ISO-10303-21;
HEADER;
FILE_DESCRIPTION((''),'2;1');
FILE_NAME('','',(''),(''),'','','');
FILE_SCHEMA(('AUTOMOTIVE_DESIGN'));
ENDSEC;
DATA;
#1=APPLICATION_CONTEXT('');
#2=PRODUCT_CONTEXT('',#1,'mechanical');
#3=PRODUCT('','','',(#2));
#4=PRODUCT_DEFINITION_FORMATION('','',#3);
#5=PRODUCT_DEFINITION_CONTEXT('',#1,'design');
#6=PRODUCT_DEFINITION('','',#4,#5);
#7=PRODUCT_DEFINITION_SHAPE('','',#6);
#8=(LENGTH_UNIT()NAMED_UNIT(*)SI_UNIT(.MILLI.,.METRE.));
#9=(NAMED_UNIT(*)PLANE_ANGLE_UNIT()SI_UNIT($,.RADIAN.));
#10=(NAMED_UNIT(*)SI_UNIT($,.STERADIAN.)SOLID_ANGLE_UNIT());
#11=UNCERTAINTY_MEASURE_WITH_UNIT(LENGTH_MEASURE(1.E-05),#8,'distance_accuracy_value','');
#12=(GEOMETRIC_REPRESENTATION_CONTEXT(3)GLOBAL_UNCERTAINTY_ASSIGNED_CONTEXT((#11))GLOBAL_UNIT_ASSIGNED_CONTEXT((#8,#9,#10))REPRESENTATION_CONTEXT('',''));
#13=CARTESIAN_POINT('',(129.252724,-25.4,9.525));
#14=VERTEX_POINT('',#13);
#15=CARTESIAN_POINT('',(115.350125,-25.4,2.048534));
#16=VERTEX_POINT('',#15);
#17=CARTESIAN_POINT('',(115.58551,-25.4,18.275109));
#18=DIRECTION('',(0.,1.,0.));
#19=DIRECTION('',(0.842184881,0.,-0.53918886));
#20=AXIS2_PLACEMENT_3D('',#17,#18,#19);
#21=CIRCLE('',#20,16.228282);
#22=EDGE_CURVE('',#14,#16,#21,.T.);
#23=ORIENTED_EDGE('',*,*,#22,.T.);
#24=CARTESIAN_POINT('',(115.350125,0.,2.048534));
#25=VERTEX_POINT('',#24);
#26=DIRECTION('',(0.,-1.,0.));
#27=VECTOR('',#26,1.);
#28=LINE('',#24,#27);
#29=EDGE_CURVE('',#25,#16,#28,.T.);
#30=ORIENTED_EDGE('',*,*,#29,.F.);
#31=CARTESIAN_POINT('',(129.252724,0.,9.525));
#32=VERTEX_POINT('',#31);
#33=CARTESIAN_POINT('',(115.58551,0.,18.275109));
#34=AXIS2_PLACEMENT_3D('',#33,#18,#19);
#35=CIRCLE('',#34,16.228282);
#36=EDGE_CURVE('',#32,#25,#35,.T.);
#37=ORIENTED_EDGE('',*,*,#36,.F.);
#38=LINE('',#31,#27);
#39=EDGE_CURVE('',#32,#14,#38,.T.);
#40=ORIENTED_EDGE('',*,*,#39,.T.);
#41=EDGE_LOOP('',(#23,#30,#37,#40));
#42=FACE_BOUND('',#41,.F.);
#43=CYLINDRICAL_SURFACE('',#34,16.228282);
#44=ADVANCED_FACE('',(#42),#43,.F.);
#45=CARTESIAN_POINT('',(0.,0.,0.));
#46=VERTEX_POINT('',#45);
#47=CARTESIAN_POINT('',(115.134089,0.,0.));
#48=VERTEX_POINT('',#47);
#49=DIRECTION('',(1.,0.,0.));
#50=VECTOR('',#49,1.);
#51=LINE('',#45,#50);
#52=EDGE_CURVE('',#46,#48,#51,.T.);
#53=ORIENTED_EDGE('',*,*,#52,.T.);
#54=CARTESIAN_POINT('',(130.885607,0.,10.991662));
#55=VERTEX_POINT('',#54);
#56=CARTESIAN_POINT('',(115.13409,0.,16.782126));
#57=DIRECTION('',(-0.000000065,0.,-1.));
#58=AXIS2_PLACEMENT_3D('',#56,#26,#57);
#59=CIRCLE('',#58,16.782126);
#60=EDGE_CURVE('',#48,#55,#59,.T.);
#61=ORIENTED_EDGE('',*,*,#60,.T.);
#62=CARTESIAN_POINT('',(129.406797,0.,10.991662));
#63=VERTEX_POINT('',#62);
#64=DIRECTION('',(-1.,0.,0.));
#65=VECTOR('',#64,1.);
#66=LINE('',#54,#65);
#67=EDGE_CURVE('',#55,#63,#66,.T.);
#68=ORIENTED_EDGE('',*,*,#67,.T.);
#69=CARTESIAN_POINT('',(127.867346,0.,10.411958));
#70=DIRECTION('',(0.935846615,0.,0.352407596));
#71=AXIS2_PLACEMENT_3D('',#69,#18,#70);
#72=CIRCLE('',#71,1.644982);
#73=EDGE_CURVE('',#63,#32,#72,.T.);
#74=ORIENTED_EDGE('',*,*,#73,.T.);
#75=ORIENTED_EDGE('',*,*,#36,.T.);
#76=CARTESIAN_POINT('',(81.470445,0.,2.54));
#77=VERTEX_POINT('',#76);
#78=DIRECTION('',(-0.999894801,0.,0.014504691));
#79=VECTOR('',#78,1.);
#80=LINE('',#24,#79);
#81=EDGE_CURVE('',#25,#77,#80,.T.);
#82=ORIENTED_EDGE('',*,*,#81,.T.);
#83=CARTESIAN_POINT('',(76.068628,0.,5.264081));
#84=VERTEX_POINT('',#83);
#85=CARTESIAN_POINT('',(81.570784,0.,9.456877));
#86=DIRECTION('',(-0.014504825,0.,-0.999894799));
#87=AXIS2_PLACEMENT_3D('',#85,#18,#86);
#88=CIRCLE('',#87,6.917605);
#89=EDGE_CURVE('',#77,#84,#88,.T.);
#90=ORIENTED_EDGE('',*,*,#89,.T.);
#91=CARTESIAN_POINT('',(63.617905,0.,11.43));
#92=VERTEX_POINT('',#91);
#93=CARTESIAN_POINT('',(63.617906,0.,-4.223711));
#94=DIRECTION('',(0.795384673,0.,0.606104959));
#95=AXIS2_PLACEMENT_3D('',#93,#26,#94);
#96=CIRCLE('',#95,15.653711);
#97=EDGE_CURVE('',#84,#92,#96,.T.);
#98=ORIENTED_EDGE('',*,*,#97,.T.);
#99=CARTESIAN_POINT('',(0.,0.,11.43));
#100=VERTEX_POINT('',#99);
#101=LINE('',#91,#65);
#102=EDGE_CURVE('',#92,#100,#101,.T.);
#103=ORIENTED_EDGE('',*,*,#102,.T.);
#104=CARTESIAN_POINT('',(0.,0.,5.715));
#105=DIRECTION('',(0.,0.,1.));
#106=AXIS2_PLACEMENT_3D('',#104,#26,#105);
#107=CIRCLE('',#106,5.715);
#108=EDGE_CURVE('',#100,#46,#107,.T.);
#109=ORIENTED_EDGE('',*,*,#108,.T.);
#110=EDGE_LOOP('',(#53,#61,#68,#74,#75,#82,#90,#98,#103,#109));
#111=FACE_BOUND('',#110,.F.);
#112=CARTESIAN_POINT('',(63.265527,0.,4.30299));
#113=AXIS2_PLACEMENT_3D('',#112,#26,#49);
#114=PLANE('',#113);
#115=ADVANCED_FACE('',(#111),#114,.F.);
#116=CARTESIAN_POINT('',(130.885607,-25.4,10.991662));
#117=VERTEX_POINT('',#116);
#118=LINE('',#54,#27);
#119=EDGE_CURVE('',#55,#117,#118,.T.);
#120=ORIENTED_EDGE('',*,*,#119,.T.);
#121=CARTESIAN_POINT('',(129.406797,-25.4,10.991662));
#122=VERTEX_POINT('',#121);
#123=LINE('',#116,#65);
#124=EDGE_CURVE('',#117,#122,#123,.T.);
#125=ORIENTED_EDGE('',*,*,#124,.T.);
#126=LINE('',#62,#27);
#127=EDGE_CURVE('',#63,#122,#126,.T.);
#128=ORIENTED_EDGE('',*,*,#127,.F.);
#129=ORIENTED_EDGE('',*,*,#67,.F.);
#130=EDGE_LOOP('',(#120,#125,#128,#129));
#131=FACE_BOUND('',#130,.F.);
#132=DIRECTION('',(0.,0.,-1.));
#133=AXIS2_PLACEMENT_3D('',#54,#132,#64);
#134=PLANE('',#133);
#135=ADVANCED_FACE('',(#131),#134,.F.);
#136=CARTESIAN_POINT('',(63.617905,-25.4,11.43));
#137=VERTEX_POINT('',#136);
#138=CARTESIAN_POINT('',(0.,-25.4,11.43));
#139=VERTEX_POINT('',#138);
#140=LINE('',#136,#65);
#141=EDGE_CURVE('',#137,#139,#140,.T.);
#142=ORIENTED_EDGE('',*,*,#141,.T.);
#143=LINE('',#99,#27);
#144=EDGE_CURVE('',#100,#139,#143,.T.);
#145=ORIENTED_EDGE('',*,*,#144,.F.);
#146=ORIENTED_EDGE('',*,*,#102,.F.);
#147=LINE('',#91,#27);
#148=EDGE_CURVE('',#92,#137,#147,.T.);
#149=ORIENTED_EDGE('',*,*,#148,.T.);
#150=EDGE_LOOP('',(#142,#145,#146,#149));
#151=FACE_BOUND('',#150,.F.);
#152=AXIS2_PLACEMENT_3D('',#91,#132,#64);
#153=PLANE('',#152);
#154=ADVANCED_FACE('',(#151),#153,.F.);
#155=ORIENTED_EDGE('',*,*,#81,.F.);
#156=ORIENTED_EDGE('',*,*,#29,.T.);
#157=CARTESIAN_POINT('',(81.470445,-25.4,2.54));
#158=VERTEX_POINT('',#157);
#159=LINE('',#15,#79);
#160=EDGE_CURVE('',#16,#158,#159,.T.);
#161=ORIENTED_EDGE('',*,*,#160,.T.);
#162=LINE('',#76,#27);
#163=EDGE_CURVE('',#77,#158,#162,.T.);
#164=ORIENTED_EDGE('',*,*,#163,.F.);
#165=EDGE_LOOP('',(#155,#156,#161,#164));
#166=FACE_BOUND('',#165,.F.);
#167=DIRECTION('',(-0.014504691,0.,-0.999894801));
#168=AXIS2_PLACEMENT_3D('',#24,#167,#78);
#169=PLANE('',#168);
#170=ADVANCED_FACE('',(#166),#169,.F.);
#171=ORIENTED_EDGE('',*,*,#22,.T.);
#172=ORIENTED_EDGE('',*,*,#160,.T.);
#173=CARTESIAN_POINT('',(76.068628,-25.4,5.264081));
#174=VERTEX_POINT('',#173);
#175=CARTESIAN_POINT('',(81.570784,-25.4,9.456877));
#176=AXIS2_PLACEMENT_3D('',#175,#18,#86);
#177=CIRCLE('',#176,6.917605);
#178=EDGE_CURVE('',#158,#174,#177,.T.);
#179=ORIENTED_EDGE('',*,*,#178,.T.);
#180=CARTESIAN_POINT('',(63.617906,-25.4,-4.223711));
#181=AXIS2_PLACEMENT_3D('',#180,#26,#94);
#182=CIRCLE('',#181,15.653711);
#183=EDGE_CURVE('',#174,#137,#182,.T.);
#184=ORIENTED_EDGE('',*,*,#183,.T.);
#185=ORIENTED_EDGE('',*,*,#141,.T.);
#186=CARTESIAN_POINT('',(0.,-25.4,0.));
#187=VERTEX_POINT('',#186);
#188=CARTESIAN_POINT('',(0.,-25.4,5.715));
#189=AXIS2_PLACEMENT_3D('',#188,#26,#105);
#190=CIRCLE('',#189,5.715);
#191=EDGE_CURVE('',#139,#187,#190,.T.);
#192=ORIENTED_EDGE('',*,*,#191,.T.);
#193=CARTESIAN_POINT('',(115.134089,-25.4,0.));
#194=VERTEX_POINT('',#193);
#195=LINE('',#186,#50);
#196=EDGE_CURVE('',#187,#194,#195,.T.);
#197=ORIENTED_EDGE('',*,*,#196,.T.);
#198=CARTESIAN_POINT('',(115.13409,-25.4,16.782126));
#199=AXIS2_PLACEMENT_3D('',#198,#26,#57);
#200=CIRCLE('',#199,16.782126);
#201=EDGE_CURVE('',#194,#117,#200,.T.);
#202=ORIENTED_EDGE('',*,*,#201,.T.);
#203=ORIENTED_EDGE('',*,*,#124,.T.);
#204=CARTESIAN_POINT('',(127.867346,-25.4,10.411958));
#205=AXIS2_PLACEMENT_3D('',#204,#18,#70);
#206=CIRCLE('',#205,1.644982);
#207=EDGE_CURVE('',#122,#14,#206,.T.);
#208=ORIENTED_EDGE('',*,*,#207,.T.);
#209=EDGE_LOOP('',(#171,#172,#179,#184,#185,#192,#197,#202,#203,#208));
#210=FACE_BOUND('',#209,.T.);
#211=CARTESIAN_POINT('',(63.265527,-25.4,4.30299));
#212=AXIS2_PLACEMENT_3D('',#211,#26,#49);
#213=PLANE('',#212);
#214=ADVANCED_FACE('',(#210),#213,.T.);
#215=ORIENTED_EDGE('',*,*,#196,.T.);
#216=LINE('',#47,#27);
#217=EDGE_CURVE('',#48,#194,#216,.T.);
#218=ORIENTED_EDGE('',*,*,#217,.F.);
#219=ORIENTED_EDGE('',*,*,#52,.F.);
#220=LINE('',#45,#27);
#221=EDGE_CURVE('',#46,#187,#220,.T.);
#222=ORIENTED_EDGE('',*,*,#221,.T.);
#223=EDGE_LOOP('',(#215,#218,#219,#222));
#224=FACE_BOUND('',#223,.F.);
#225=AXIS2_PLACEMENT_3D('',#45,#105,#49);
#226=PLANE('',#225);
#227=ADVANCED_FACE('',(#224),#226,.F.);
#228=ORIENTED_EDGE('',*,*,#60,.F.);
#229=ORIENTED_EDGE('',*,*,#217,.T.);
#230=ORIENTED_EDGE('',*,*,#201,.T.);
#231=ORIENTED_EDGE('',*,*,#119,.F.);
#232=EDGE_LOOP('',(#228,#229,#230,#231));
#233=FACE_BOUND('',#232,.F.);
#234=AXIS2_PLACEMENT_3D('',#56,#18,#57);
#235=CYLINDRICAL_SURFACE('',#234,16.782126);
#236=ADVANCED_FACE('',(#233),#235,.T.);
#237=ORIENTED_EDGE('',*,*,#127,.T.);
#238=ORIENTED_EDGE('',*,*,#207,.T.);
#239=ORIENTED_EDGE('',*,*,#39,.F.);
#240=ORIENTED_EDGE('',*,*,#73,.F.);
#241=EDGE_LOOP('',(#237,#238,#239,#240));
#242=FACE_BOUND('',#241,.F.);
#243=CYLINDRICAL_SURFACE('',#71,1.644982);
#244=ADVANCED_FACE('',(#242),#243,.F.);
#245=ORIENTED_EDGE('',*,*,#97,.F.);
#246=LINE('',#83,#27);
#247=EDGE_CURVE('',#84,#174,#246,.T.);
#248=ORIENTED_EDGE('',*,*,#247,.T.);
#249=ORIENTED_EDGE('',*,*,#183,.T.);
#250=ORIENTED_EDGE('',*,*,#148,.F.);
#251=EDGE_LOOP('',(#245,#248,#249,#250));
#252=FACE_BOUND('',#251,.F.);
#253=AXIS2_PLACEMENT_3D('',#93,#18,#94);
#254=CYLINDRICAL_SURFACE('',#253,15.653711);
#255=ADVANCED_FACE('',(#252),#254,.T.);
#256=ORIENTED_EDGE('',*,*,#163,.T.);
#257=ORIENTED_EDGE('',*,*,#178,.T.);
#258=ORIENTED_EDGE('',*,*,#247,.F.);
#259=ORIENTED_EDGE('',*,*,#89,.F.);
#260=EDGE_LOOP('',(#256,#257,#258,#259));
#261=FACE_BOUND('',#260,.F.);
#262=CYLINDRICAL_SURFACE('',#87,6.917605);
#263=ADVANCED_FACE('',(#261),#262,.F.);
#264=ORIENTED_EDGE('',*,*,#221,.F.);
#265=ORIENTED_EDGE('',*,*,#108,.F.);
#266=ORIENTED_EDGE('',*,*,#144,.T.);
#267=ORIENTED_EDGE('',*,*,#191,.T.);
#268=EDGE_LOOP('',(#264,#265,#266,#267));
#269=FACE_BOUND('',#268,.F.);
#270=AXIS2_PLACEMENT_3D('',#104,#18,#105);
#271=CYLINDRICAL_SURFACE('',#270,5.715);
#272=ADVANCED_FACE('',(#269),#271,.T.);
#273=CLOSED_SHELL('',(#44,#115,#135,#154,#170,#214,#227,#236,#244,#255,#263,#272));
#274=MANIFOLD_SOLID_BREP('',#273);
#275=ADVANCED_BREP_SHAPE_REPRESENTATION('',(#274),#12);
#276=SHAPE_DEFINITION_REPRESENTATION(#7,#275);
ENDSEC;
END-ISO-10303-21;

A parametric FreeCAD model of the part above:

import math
import FreeCAD as App
import Part
import Sketcher
from FreeCAD import Vector
Q = App.Units.Quantity

doc = App.newDocument("Part")
body = doc.addObject("PartDesign::Body", "Body")

# Sketch on XZ plane
sketch1 = body.newObject("Sketcher::SketchObject", "Sketch")
sketch1.AttachmentSupport = (doc.getObject("XZ_Plane"), [""])
sketch1.MapMode = "FlatFace"
sketch1.addGeometry([
    Part.LineSegment(Vector(63.6, 11.4, 0), Vector(0, 11.4, 0)),  # 0
    Part.ArcOfCircle(Part.Circle(Vector(0, 5.7, 0), Vector(0, 0, 1), 5.7), math.radians(90), math.radians(270)),  # 1
    Part.LineSegment(Vector(0, 0, 0), Vector(115.1, 0, 0)),  # 2
    Part.ArcOfCircle(Part.Circle(Vector(115.1, 16.8, 0), Vector(0, 0, 1), 16.8), math.radians(-90), math.radians(-20)),  # 3
    Part.LineSegment(Vector(130.9, 11, 0), Vector(129.4, 11, 0)),  # 4
    Part.ArcOfCircle(Part.Circle(Vector(127.9, 10.4, 0), Vector(0, 0, 1), 1.6), math.radians(-33), math.radians(21)),  # 5
    Part.ArcOfCircle(Part.Circle(Vector(115.6, 18.3, 0), Vector(0, 0, 1), 16.2), math.radians(-91), math.radians(-33)),  # 6
    Part.LineSegment(Vector(115.4, 2, 0), Vector(81.5, 2.5, 0)),  # 7
    Part.ArcOfCircle(Part.Circle(Vector(81.6, 9.5, 0), Vector(0, 0, 1), 6.9), math.radians(-143), math.radians(-91)),  # 8
    Part.ArcOfCircle(Part.Circle(Vector(63.6, -4.2, 0), Vector(0, 0, 1), 15.7), math.radians(37), math.radians(90)),  # 9
], False)
sketch1.addConstraint([
    Sketcher.Constraint("Tangent", 0, 2, 1, 1),
    Sketcher.Constraint("Tangent", 1, 2, 2, 1),
    Sketcher.Constraint("Tangent", 2, 2, 3, 1),
    Sketcher.Constraint("Coincident", 3, 2, 4, 1),
    Sketcher.Constraint("Coincident", 4, 2, 5, 2),
    Sketcher.Constraint("Tangent", 5, 1, 6, 2),
    Sketcher.Constraint("Tangent", 6, 1, 7, 1),
    Sketcher.Constraint("Tangent", 7, 2, 8, 2),
    Sketcher.Constraint("Tangent", 8, 1, 9, 1),
    Sketcher.Constraint("Tangent", 9, 2, 0, 1),
    Sketcher.Constraint("Horizontal", 0),
    Sketcher.Constraint("Horizontal", 2),
    Sketcher.Constraint("Horizontal", 4),
    Sketcher.Constraint("Coincident", 1, 2, -1, 1),
    Sketcher.Constraint("Radius", 1, Q("0.225 in")),
    Sketcher.Constraint("DistanceY", -1, 1, 7, 2, Q("0.1 in")),
    Sketcher.Constraint("DistanceY", -1, 1, 5, 1, Q("0.375 in")),
    Sketcher.Constraint("Radius", 9, 15.653711),
    Sketcher.Constraint("Radius", 3, 16.782126),
    Sketcher.Constraint("Radius", 5, 1.644982),
    Sketcher.Constraint("Radius", 6, 16.228282),
    Sketcher.Constraint("Radius", 8, 6.917605),
    Sketcher.Constraint("DistanceX", 2, 1, 2, 2, 115.134089),
    Sketcher.Constraint("DistanceX", 4, 2, 4, 1, 1.47881),
    Sketcher.Constraint("DistanceX", 6, 1, 5, 1, 13.902599),
    Sketcher.Constraint("DistanceX", 0, 2, 0, 1, 63.617905),
    Sketcher.Constraint("DistanceX", -1, 1, 6, 3, 115.58551),
])
pad1 = body.newObject("PartDesign::Pad", "Pad")
pad1.Profile = sketch1
pad1.Length = Q("1 in")

doc.recompute()
